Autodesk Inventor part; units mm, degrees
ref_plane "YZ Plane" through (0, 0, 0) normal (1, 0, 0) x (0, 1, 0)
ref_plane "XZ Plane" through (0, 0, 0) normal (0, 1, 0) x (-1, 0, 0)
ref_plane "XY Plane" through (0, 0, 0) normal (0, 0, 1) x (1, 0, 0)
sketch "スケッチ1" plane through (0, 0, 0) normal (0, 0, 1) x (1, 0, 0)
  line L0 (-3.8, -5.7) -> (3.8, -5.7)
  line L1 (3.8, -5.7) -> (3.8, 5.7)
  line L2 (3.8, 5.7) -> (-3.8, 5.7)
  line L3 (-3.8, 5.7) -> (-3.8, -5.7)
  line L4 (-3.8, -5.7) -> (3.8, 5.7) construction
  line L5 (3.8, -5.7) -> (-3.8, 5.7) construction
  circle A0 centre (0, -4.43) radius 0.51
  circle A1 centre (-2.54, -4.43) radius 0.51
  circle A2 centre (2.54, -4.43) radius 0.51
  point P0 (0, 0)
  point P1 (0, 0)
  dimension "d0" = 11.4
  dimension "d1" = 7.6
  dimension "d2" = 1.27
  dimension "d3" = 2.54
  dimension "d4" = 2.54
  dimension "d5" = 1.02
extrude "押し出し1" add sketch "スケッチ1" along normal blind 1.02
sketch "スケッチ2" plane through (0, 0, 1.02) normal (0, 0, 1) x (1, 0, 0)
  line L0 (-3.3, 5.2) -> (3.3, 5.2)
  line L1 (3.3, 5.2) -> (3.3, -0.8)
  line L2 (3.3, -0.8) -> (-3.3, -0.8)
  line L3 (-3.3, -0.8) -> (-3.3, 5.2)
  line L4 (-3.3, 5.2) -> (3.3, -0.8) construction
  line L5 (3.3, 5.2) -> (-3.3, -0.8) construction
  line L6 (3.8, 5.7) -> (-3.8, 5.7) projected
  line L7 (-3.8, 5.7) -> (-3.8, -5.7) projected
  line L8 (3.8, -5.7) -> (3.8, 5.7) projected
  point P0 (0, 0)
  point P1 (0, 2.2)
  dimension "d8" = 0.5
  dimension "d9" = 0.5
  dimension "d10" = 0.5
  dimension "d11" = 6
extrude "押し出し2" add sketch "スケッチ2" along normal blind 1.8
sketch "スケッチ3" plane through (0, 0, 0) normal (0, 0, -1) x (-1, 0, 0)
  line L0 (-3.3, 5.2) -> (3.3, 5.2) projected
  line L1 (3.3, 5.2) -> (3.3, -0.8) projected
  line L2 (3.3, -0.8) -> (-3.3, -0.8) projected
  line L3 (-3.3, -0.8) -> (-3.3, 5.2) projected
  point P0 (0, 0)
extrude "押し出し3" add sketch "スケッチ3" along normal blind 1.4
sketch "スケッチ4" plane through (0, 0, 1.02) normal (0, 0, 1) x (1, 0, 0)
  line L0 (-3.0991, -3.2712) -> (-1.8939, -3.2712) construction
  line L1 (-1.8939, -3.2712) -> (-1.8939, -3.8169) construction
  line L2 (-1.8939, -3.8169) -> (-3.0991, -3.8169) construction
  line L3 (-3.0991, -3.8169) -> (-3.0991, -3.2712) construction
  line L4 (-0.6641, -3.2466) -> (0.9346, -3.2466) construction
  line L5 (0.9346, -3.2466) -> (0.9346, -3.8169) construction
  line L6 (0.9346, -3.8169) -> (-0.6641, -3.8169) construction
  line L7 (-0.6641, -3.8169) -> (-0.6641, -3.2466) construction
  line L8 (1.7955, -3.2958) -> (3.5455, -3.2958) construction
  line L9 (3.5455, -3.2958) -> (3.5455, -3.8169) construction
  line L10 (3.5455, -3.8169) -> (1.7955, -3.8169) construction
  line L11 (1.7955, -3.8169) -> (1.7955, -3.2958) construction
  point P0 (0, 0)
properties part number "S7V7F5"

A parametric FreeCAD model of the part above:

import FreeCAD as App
import Part
import Sketcher


def add_polygon(sketch, points):
    """Adds a closed chain of lines whose ends are joined by coincident constraints."""
    first, n = sketch.GeometryCount, len(points)
    for a, b in zip(points, points[1:] + points[:1]):
        sketch.addGeometry(Part.LineSegment(App.Vector(*a, 0), App.Vector(*b, 0)), False)
    for i in range(n):
        sketch.addConstraint(Sketcher.Constraint("Coincident", first + i, 2, first + (i + 1) % n, 1))

doc = App.newDocument("Part")
body = doc.addObject("PartDesign::Body", "Body")

sketch1 = body.newObject("Sketcher::SketchObject", "Sketch")
sketch1.AttachmentSupport = (doc.getObject("XY_Plane"), [""])
sketch1.MapMode = "FlatFace"
add_polygon(sketch1, [(-3.8, 5.7), (-3.8, -5.7), (3.8, -5.7), (3.8, 5.7)])
sketch1.addGeometry(Part.Circle(App.Vector(-2.5, -4.4, 0), App.Vector(0, 0, 1), 0.5), False)
sketch1.addGeometry(Part.Circle(App.Vector(0, -4.4, 0), App.Vector(0, 0, 1), 0.5), False)
sketch1.addGeometry(Part.Circle(App.Vector(2.5, -4.4, 0), App.Vector(0, 0, 1), 0.5), False)
sketch1.addConstraint(Sketcher.Constraint("Vertical", 0))
sketch1.addConstraint(Sketcher.Constraint("Horizontal", 1))
sketch1.addConstraint(Sketcher.Constraint("Vertical", 2))
sketch1.addConstraint(Sketcher.Constraint("Horizontal", 3))
sketch1.addConstraint(Sketcher.Constraint("Equal", 4, 5))
sketch1.addConstraint(Sketcher.Constraint("Equal", 5, 6))
sketch1.addConstraint(Sketcher.Constraint("Symmetric", 0, 2, 2, 2, -1, 1))
sketch1.addConstraint(Sketcher.Constraint("Symmetric", 4, 3, 6, 3, -2))
sketch1.addConstraint(Sketcher.Constraint("PointOnObject", 5, 3, -2))
sketch1.addConstraint(Sketcher.Constraint("Horizontal", 4, 3, 5, 3))
sketch1.addConstraint(Sketcher.Constraint("Diameter", 4, 1.02))
sketch1.addConstraint(Sketcher.Constraint("DistanceX", 1, 1, 1, 2, 7.6))
sketch1.addConstraint(Sketcher.Constraint("DistanceY", 0, 2, 0, 1, 11.4))
sketch1.addConstraint(Sketcher.Constraint("DistanceX", 4, 3, -1, 1, 2.54))
sketch1.addConstraint(Sketcher.Constraint("DistanceY", 0, 2, 4, 3, 1.27))
pad1 = body.newObject("PartDesign::Pad", "Pad")
pad1.Profile = sketch1
pad1.Length = 1.02

sketch2 = body.newObject("Sketcher::SketchObject", "Sketch001")
sketch2.AttachmentSupport = (doc.getObject("XY_Plane"), [""])
sketch2.MapMode = "FlatFace"
sketch2.AttachmentOffset = App.Placement(App.Vector(0, 0, 1.02), App.Rotation())
add_polygon(sketch2, [(3, 5), (-3, 5), (-3, -1), (3, -1)])
sketch2.addConstraint(Sketcher.Constraint("Horizontal", 0))
sketch2.addConstraint(Sketcher.Constraint("Vertical", 1))
sketch2.addConstraint(Sketcher.Constraint("Horizontal", 2))
sketch2.addConstraint(Sketcher.Constraint("Vertical", 3))
sketch2.addConstraint(Sketcher.Constraint("DistanceY", 1, 2, 1, 1, 6.0))
sketch2.addConstraint(Sketcher.Constraint("DistanceX", 0, 2, 0, 1, 6.6))
sketch2.addConstraint(Sketcher.Constraint("DistanceX", 0, 2, -1, 1, 3.3))
sketch2.addConstraint(Sketcher.Constraint("DistanceY", -1, 1, 0, 2, 5.2))
pad2 = body.newObject("PartDesign::Pad", "Pad001")
pad2.Profile = sketch2
pad2.Length = 1.8

sketch3 = body.newObject("Sketcher::SketchObject", "Sketch002")
sketch3.AttachmentSupport = (doc.getObject("XY_Plane"), [""])
sketch3.MapMode = "FlatFace"
add_polygon(sketch3, [(-3, 5), (3, 5), (3, -1), (-3, -1)])
sketch3.addConstraint(Sketcher.Constraint("Horizontal", 0))
sketch3.addConstraint(Sketcher.Constraint("Vertical", 1))
sketch3.addConstraint(Sketcher.Constraint("Horizontal", 2))
sketch3.addConstraint(Sketcher.Constraint("Vertical", 3))
sketch3.addConstraint(Sketcher.Constraint("DistanceY", 1, 2, 1, 1, 6.0))
sketch3.addConstraint(Sketcher.Constraint("DistanceX", 0, 1, 0, 2, 6.6))
sketch3.addConstraint(Sketcher.Constraint("DistanceX", -1, 1, 0, 2, 3.3))
sketch3.addConstraint(Sketcher.Constraint("DistanceY", -1, 1, 0, 2, 5.2))
pad3 = body.newObject("PartDesign::Pad", "Pad002")
pad3.Profile = sketch3
pad3.Length = 1.4
pad3.Reversed = True

doc.recompute()
